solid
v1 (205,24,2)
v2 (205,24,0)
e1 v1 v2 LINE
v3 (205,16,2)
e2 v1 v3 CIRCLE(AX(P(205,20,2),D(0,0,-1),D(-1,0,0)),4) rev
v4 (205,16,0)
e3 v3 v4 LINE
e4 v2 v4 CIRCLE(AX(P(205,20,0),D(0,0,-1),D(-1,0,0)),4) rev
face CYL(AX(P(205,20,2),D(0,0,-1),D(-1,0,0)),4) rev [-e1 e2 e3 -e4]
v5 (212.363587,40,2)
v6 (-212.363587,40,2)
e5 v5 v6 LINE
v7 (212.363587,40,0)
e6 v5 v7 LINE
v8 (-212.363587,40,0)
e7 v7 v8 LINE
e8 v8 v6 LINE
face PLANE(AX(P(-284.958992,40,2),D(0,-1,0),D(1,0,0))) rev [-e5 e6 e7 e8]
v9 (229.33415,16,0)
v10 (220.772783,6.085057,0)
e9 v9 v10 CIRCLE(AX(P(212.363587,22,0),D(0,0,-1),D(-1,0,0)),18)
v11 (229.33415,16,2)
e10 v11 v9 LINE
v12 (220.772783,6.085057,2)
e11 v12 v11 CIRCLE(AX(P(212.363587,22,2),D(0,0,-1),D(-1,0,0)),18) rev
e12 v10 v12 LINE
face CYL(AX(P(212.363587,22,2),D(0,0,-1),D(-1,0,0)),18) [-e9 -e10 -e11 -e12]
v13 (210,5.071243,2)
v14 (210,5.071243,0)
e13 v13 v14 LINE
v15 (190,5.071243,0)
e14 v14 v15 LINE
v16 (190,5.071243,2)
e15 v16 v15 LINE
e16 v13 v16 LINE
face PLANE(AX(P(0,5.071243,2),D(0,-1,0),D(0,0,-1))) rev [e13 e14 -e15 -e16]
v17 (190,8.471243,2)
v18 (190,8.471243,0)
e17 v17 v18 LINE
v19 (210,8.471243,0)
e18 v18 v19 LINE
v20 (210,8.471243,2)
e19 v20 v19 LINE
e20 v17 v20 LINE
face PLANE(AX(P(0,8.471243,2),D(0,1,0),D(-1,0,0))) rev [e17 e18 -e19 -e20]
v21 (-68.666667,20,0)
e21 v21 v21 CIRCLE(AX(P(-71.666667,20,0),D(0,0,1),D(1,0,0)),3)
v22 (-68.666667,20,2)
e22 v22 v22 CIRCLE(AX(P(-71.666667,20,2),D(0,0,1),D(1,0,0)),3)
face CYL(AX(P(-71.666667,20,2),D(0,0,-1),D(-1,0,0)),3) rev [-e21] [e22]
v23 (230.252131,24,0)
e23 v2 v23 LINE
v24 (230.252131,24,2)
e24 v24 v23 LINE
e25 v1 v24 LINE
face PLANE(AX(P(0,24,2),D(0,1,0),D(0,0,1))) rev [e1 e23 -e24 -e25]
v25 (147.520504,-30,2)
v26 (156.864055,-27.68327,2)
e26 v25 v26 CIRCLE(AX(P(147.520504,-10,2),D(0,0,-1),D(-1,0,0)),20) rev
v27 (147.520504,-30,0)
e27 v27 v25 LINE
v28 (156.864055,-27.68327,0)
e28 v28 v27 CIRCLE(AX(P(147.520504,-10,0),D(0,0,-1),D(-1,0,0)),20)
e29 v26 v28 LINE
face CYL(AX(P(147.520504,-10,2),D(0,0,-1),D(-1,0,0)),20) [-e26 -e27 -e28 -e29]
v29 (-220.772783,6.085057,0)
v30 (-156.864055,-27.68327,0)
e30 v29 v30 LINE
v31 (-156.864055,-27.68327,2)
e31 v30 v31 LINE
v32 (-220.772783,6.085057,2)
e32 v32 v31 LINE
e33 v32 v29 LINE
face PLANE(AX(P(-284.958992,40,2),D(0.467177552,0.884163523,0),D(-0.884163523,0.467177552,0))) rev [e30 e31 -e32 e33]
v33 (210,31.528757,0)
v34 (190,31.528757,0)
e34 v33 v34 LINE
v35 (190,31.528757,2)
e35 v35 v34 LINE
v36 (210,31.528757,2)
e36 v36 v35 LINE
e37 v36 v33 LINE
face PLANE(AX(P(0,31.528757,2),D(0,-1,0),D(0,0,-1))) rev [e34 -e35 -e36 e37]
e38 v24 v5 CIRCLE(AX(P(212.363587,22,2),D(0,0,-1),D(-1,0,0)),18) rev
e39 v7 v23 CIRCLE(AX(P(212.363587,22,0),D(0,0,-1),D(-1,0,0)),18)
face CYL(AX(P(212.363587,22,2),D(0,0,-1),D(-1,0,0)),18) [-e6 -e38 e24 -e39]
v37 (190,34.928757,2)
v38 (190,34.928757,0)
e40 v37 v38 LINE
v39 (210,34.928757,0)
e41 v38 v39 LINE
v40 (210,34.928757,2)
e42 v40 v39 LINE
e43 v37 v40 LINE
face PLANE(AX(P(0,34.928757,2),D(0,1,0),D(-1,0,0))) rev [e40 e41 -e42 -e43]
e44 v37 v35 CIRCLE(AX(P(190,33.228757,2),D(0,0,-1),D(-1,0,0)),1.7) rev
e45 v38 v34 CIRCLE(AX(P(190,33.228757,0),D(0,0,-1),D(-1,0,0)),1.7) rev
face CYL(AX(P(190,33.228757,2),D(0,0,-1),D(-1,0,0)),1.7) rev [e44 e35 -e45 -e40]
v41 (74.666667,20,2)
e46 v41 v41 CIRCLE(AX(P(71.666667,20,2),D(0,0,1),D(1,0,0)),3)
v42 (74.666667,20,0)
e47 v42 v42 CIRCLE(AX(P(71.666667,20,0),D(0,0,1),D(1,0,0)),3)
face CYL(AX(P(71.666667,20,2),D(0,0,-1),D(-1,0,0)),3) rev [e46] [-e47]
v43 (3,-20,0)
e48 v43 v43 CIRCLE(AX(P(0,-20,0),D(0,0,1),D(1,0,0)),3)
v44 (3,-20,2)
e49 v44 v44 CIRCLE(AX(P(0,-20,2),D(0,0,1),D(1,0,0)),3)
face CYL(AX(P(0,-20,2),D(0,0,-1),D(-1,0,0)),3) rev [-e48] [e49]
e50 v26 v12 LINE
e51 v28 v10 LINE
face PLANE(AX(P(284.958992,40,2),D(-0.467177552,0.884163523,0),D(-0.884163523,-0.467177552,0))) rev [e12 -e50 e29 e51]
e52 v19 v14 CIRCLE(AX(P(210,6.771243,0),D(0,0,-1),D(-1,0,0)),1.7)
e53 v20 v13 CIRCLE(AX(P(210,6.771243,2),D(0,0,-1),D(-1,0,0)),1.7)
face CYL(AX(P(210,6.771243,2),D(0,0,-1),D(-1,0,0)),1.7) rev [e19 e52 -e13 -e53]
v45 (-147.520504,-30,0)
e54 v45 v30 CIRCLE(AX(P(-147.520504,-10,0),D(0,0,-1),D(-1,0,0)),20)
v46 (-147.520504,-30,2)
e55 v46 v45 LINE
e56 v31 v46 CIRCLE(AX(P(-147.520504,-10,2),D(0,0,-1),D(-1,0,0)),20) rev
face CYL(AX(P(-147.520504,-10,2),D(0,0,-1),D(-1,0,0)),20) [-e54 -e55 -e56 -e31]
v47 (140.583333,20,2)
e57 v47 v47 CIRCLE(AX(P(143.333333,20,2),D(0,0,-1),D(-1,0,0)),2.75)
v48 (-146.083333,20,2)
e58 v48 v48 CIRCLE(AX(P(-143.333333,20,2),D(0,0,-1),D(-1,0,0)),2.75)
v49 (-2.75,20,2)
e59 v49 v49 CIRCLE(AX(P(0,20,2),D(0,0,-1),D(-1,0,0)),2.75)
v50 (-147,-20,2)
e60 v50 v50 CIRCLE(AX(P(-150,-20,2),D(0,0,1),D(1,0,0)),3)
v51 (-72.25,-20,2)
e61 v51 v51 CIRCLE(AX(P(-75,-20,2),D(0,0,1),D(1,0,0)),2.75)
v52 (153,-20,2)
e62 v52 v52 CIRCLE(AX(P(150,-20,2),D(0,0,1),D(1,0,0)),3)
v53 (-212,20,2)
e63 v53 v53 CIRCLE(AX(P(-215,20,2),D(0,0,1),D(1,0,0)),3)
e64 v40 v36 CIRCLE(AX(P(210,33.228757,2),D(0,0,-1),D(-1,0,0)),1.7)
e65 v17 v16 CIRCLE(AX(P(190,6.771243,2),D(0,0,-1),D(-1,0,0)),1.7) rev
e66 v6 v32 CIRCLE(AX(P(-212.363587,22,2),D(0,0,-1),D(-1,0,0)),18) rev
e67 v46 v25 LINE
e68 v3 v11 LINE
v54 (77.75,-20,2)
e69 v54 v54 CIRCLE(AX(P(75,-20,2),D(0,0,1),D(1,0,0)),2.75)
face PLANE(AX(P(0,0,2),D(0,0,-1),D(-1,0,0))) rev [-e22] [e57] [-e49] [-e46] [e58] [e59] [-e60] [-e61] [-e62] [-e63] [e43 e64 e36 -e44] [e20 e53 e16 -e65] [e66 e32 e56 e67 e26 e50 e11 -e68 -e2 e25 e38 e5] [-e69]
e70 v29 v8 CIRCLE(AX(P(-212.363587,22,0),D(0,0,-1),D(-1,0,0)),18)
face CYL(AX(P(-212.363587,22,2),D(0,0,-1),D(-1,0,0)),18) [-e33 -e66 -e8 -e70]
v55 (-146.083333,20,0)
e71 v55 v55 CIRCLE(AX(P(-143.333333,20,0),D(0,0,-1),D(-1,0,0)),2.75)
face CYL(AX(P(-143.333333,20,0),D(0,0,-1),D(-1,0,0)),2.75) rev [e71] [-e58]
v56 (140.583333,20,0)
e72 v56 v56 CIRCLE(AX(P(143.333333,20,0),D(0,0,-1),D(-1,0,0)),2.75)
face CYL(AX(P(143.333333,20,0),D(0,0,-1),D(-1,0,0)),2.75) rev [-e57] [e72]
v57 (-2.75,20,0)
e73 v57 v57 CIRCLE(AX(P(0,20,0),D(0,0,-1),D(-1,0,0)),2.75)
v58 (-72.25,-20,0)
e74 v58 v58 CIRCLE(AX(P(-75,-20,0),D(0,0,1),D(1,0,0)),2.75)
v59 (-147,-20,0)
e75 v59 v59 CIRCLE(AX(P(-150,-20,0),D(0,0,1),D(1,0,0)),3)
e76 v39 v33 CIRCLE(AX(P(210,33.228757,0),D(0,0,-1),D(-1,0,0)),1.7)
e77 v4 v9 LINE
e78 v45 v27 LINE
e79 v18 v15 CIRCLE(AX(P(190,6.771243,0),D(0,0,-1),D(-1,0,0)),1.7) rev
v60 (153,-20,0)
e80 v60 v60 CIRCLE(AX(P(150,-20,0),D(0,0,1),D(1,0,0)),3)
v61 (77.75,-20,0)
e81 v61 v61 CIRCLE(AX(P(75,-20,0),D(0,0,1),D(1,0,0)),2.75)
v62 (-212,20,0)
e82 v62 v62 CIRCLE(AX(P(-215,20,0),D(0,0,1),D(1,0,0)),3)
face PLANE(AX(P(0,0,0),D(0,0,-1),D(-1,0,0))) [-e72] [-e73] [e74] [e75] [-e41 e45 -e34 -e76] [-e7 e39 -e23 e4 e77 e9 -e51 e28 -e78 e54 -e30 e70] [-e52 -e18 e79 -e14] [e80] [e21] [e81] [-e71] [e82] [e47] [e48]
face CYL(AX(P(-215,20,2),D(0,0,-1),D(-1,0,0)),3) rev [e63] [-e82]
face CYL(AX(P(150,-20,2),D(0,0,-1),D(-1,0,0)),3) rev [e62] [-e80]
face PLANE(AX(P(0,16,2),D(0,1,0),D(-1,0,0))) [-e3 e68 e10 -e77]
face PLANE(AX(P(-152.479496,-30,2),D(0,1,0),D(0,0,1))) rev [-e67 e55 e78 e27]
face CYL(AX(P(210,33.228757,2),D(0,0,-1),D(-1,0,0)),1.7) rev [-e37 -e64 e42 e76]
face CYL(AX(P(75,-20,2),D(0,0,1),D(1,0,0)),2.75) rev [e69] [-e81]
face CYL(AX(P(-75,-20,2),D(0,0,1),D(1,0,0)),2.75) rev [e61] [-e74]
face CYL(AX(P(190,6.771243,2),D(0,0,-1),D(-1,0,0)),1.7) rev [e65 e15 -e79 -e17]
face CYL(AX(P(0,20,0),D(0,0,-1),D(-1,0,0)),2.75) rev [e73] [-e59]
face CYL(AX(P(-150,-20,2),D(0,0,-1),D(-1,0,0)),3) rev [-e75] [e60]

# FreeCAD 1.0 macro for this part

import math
import FreeCAD as App
import Part
import Sketcher
from FreeCAD import Vector
Q = App.Units.Quantity


def edges_at(feature, points):
    """Names of the edges that pass closest to the given points."""
    edges = feature.Shape.Edges
    near = lambda p: min(range(len(edges)), key=lambda i: edges[i].distToShape(Part.Vertex(*p))[0])
    return sorted({f"Edge{near(p) + 1}" for p in points})


def add_polygon(sketch, points):
    """Adds a closed chain of lines whose ends are joined by coincident constraints."""
    first, n = sketch.GeometryCount, len(points)
    for a, b in zip(points, points[1:] + points[:1]):
        sketch.addGeometry(Part.LineSegment(App.Vector(*a, 0), App.Vector(*b, 0)), False)
    for i in range(n):
        sketch.addConstraint(Sketcher.Constraint("Coincident", first + i, 2, first + (i + 1) % n, 1))

doc = App.newDocument("Part")
body = doc.addObject("PartDesign::Body", "Body")

# Sketch on XY plane
sketch1 = body.newObject("Sketcher::SketchObject", "Sketch")
sketch1.AttachmentSupport = (doc.getObject("XY_Plane"), [""])
sketch1.MapMode = "FlatFace"
add_polygon(sketch1, [(285, 40), (-285, 40), (-152.5, -30), (152.5, -30)])  # lines 0-3
sketch1.addGeometry(Part.Circle(Vector(150, -20, 0), Vector(0, 0, 1), 3), False)  # 4
sketch1.addGeometry(Part.Circle(Vector(0, -20, 0), Vector(0, 0, 1), 3), False)  # 5
sketch1.addGeometry(Part.Circle(Vector(-150, -20, 0), Vector(0, 0, 1), 3), False)  # 6
sketch1.addGeometry(Part.Circle(Vector(215, 20, 0), Vector(0, 0, 1), 3), False)  # 7
sketch1.addGeometry(Part.Circle(Vector(71.7, 20, 0), Vector(0, 0, 1), 3), False)  # 8
sketch1.addGeometry(Part.Circle(Vector(-71.7, 20, 0), Vector(0, 0, 1), 3), False)  # 9
sketch1.addGeometry(Part.Circle(Vector(-215, 20, 0), Vector(0, 0, 1), 3), False)  # 10
sketch1.addConstraint([
    Sketcher.Constraint("Horizontal", 0),
    Sketcher.Constraint("Horizontal", 2),
    Sketcher.Constraint("Equal", 4, 5),
    Sketcher.Constraint("Equal", 5, 6),
    Sketcher.Constraint("Equal", 6, 7),
    Sketcher.Constraint("Equal", 7, 8),
    Sketcher.Constraint("Equal", 8, 9),
    Sketcher.Constraint("Equal", 9, 10),
    Sketcher.Constraint("Symmetric", 4, 3, 6, 3, -2),
    Sketcher.Constraint("Symmetric", 8, 3, 9, 3, -2),
    Sketcher.Constraint("Symmetric", 7, 3, 10, 3, -2),
    Sketcher.Constraint("PointOnObject", 5, 3, -2),
    Sketcher.Constraint("Horizontal", 4, 3, 5, 3),
    Sketcher.Constraint("Horizontal", 7, 3, 8, 3),
    Sketcher.Constraint("Equal", 1, 3),
    Sketcher.Constraint("Diameter", 4, Q("6 mm")),
    Sketcher.Constraint("DistanceX", -1, 1, 4, 3, Q("150 mm")),
    Sketcher.Constraint("DistanceY", 4, 3, -1, 1, Q("20 mm")),
    Sketcher.Constraint("DistanceX", -1, 1, 7, 3, Q("215 mm")),
    Sketcher.Constraint("DistanceY", -1, 1, 7, 3, Q("20 mm")),
    Sketcher.Constraint("DistanceY", -1, 1, 0, 2, Q("40 mm")),
    Sketcher.Constraint("DistanceY", 1, 2, -1, 1, Q("30 mm")),
    Sketcher.Constraint("DistanceX", 2, 1, 2, 2, Q("304.958992 mm")),
    Sketcher.Constraint("DistanceX", 0, 2, 0, 1, Q("569.917983 mm")),
    Sketcher.Constraint("DistanceX", 0, 2, -1, 1, Q("284.958992 mm")),
    Sketcher.Constraint("DistanceX", 0, 2, 8, 3, Q("356.625658 mm")),
])
pad1 = body.newObject("PartDesign::Pad", "Pad")
pad1.Profile = sketch1
pad1.Length = 2
doc.recompute()

fillet = body.newObject("PartDesign::Fillet", "Fillet")
fillet.Base = (pad1, edges_at(pad1, [(-284.959, 40, 1), (284.959, 40, 1)]))
fillet.Radius = 18
doc.recompute()

fillet2 = body.newObject("PartDesign::Fillet", "Fillet001")
fillet2.Base = (fillet, edges_at(fillet, [(152.479, -30, 1), (-152.479, -30, 1)]))
fillet2.Radius = 20

# Sketch on XY plane
sketch2 = body.newObject("Sketcher::SketchObject", "Sketch001")
sketch2.AttachmentSupport = (doc.getObject("XY_Plane"), [""])
sketch2.MapMode = "FlatFace"
sketch2.addGeometry([
    Part.Circle(Vector(200, 33.2, 0), Vector(0, 0, 1), 1.7),
    Part.Circle(Vector(200, 6.8, 0), Vector(0, 0, 1), 1.7),
], False)
sketch2.addConstraint([
    Sketcher.Constraint("Equal", 0, 1),
    Sketcher.Constraint("Vertical", 0, 3, 1, 3),
    Sketcher.Constraint("Diameter", 0, Q("3.4 mm")),
    Sketcher.Constraint("DistanceX", -1, 1, 0, 3, Q("200 mm")),
    Sketcher.Constraint("DistanceY", -1, 1, 0, 3, Q("33.228757 mm")),
    Sketcher.Constraint("DistanceY", -1, 1, 1, 3, Q("6.771243 mm")),
])
doc.recompute()
hole = body.newObject("PartDesign::Hole", "Hole")
hole.Profile = sketch2
hole.ThreadType = "None"
hole.Diameter = 3.4
hole.DepthType = "ThroughAll"
hole.Reversed = True

# Sketch on XY plane
sketch3 = body.newObject("Sketcher::SketchObject", "Sketch002")
sketch3.AttachmentSupport = (doc.getObject("XY_Plane"), [""])
sketch3.MapMode = "FlatFace"
sketch3.addGeometry([
    Part.LineSegment(Vector(229.3, 16, 0), Vector(205, 16, 0)),  # 0
    Part.ArcOfCircle(Part.Circle(Vector(205, 20, 0), Vector(0, 0, 1), 4), math.radians(90), math.radians(270)),  # 1
    Part.LineSegment(Vector(205, 24, 0), Vector(230.3, 24, 0)),  # 2
    Part.ArcOfCircle(Part.Circle(Vector(212.4, 22, 0), Vector(0, 0, 1), 18), math.radians(-19), math.radians(6)),  # 3
    Part.LineSegment(Vector(210, 31.5, 0), Vector(190, 31.5, 0)),  # 4
    Part.ArcOfCircle(Part.Circle(Vector(190, 33.2, 0), Vector(0, 0, 1), 1.7), math.radians(90), math.radians(270)),  # 5
    Part.LineSegment(Vector(190, 34.9, 0), Vector(210, 34.9, 0)),  # 6
    Part.ArcOfCircle(Part.Circle(Vector(210, 33.2, 0), Vector(0, 0, 1), 1.7), math.radians(-90), math.radians(90)),  # 7
    Part.LineSegment(Vector(210, 5.1, 0), Vector(190, 5.1, 0)),  # 8
    Part.ArcOfCircle(Part.Circle(Vector(190, 6.8, 0), Vector(0, 0, 1), 1.7), math.radians(90), math.radians(270)),  # 9
    Part.LineSegment(Vector(190, 8.5, 0), Vector(210, 8.5, 0)),  # 10
    Part.ArcOfCircle(Part.Circle(Vector(210, 6.8, 0), Vector(0, 0, 1), 1.7), math.radians(-90), math.radians(90)),  # 11
], False)
sketch3.addConstraint([
    Sketcher.Constraint("Tangent", 0, 2, 1, 2),
    Sketcher.Constraint("Tangent", 1, 1, 2, 1),
    Sketcher.Constraint("Coincident", 2, 2, 3, 2),
    Sketcher.Constraint("Coincident", 3, 1, 0, 1),
    Sketcher.Constraint("Tangent", 4, 2, 5, 2),
    Sketcher.Constraint("Tangent", 5, 1, 6, 1),
    Sketcher.Constraint("Tangent", 6, 2, 7, 2),
    Sketcher.Constraint("Tangent", 7, 1, 4, 1),
    Sketcher.Constraint("Tangent", 8, 2, 9, 2),
    Sketcher.Constraint("Tangent", 9, 1, 10, 1),
    Sketcher.Constraint("Tangent", 10, 2, 11, 2),
    Sketcher.Constraint("Tangent", 11, 1, 8, 1),
    Sketcher.Constraint("Horizontal", 0),
    Sketcher.Constraint("Horizontal", 2),
    Sketcher.Constraint("Horizontal", 4),
    Sketcher.Constraint("Horizontal", 6),
    Sketcher.Constraint("Horizontal", 8),
    Sketcher.Constraint("Horizontal", 10),
    Sketcher.Constraint("Equal", 7, 9),
    Sketcher.Constraint("Vertical", 5, 3, 9, 3),
    Sketcher.Constraint("Vertical", 7, 3, 11, 3),
    Sketcher.Constraint("Radius", 1, Q("4 mm")),
    Sketcher.Constraint("Radius", 3, Q("18 mm")),
    Sketcher.Constraint("Radius", 5, Q("1.7 mm")),
    Sketcher.Constraint("DistanceX", 4, 2, 4, 1, Q("20 mm")),
    Sketcher.Constraint("DistanceX", -1, 1, 1, 3, Q("205 mm")),
    Sketcher.Constraint("DistanceY", -1, 1, 1, 3, Q("20 mm")),
    Sketcher.Constraint("DistanceY", -1, 1, 3, 3, Q("22 mm")),
    Sketcher.Constraint("DistanceX", -1, 1, 5, 3, Q("190 mm")),
    Sketcher.Constraint("DistanceX", 0, 2, 0, 1, Q("24.33415 mm")),
    Sketcher.Constraint("DistanceY", -1, 1, 5, 3, Q("33.228757 mm")),
    Sketcher.Constraint("DistanceY", -1, 1, 9, 3, Q("6.771243 mm")),
])
pocket1 = body.newObject("PartDesign::Pocket", "Pocket")
pocket1.Profile = sketch3
pocket1.Type = "ThroughAll"
pocket1.Reversed = True

# Sketch on XY plane
sketch4 = body.newObject("Sketcher::SketchObject", "Sketch003")
sketch4.AttachmentSupport = (doc.getObject("XY_Plane"), [""])
sketch4.MapMode = "FlatFace"
sketch4.addGeometry([
    Part.Circle(Vector(-143.3, 20, 0), Vector(0, 0, 1), 2.8),
    Part.Circle(Vector(0, 20, 0), Vector(0, 0, 1), 2.8),
    Part.Circle(Vector(143.3, 20, 0), Vector(0, 0, 1), 2.8),
], False)
sketch4.addConstraint([
    Sketcher.Constraint("Equal", 0, 1),
    Sketcher.Constraint("Equal", 1, 2),
    Sketcher.Constraint("Symmetric", 0, 3, 2, 3, -2),
    Sketcher.Constraint("PointOnObject", 1, 3, -2),
    Sketcher.Constraint("Horizontal", 0, 3, 1, 3),
    Sketcher.Constraint("Diameter", 0, Q("5.5 mm")),
    Sketcher.Constraint("DistanceY", -1, 1, 0, 3, Q("20 mm")),
    Sketcher.Constraint("DistanceX", 0, 3, -1, 1, Q("143.333333 mm")),
])
doc.recompute()
hole2 = body.newObject("PartDesign::Hole", "Hole001")
hole2.Profile = sketch4
hole2.ThreadType = "None"
hole2.Diameter = 5.5
hole2.DepthType = "ThroughAll"
hole2.Reversed = True

# Sketch on XY plane
sketch5 = body.newObject("Sketcher::SketchObject", "Sketch004")
sketch5.AttachmentSupport = (doc.getObject("XY_Plane"), [""])
sketch5.MapMode = "FlatFace"
sketch5.AttachmentOffset = App.Placement(Vector(0, 0, 2), App.Rotation())
sketch5.addGeometry([
    Part.Circle(Vector(-75, -20, 0), Vector(0, 0, 1), 2.8),
    Part.Circle(Vector(75, -20, 0), Vector(0, 0, 1), 2.8),
], False)
sketch5.addConstraint([
    Sketcher.Constraint("Equal", 0, 1),
    Sketcher.Constraint("Symmetric", 0, 3, 1, 3, -2),
    Sketcher.Constraint("Diameter", 0, Q("5.5 mm")),
    Sketcher.Constraint("DistanceX", 0, 3, -1, 1, Q("75 mm")),
    Sketcher.Constraint("DistanceY", 0, 3, -1, 1, Q("20 mm")),
])
doc.recompute()
hole3 = body.newObject("PartDesign::Hole", "Hole002")
hole3.Profile = sketch5
hole3.ThreadType = "None"
hole3.Diameter = 5.5
hole3.DepthType = "ThroughAll"

doc.recompute()
